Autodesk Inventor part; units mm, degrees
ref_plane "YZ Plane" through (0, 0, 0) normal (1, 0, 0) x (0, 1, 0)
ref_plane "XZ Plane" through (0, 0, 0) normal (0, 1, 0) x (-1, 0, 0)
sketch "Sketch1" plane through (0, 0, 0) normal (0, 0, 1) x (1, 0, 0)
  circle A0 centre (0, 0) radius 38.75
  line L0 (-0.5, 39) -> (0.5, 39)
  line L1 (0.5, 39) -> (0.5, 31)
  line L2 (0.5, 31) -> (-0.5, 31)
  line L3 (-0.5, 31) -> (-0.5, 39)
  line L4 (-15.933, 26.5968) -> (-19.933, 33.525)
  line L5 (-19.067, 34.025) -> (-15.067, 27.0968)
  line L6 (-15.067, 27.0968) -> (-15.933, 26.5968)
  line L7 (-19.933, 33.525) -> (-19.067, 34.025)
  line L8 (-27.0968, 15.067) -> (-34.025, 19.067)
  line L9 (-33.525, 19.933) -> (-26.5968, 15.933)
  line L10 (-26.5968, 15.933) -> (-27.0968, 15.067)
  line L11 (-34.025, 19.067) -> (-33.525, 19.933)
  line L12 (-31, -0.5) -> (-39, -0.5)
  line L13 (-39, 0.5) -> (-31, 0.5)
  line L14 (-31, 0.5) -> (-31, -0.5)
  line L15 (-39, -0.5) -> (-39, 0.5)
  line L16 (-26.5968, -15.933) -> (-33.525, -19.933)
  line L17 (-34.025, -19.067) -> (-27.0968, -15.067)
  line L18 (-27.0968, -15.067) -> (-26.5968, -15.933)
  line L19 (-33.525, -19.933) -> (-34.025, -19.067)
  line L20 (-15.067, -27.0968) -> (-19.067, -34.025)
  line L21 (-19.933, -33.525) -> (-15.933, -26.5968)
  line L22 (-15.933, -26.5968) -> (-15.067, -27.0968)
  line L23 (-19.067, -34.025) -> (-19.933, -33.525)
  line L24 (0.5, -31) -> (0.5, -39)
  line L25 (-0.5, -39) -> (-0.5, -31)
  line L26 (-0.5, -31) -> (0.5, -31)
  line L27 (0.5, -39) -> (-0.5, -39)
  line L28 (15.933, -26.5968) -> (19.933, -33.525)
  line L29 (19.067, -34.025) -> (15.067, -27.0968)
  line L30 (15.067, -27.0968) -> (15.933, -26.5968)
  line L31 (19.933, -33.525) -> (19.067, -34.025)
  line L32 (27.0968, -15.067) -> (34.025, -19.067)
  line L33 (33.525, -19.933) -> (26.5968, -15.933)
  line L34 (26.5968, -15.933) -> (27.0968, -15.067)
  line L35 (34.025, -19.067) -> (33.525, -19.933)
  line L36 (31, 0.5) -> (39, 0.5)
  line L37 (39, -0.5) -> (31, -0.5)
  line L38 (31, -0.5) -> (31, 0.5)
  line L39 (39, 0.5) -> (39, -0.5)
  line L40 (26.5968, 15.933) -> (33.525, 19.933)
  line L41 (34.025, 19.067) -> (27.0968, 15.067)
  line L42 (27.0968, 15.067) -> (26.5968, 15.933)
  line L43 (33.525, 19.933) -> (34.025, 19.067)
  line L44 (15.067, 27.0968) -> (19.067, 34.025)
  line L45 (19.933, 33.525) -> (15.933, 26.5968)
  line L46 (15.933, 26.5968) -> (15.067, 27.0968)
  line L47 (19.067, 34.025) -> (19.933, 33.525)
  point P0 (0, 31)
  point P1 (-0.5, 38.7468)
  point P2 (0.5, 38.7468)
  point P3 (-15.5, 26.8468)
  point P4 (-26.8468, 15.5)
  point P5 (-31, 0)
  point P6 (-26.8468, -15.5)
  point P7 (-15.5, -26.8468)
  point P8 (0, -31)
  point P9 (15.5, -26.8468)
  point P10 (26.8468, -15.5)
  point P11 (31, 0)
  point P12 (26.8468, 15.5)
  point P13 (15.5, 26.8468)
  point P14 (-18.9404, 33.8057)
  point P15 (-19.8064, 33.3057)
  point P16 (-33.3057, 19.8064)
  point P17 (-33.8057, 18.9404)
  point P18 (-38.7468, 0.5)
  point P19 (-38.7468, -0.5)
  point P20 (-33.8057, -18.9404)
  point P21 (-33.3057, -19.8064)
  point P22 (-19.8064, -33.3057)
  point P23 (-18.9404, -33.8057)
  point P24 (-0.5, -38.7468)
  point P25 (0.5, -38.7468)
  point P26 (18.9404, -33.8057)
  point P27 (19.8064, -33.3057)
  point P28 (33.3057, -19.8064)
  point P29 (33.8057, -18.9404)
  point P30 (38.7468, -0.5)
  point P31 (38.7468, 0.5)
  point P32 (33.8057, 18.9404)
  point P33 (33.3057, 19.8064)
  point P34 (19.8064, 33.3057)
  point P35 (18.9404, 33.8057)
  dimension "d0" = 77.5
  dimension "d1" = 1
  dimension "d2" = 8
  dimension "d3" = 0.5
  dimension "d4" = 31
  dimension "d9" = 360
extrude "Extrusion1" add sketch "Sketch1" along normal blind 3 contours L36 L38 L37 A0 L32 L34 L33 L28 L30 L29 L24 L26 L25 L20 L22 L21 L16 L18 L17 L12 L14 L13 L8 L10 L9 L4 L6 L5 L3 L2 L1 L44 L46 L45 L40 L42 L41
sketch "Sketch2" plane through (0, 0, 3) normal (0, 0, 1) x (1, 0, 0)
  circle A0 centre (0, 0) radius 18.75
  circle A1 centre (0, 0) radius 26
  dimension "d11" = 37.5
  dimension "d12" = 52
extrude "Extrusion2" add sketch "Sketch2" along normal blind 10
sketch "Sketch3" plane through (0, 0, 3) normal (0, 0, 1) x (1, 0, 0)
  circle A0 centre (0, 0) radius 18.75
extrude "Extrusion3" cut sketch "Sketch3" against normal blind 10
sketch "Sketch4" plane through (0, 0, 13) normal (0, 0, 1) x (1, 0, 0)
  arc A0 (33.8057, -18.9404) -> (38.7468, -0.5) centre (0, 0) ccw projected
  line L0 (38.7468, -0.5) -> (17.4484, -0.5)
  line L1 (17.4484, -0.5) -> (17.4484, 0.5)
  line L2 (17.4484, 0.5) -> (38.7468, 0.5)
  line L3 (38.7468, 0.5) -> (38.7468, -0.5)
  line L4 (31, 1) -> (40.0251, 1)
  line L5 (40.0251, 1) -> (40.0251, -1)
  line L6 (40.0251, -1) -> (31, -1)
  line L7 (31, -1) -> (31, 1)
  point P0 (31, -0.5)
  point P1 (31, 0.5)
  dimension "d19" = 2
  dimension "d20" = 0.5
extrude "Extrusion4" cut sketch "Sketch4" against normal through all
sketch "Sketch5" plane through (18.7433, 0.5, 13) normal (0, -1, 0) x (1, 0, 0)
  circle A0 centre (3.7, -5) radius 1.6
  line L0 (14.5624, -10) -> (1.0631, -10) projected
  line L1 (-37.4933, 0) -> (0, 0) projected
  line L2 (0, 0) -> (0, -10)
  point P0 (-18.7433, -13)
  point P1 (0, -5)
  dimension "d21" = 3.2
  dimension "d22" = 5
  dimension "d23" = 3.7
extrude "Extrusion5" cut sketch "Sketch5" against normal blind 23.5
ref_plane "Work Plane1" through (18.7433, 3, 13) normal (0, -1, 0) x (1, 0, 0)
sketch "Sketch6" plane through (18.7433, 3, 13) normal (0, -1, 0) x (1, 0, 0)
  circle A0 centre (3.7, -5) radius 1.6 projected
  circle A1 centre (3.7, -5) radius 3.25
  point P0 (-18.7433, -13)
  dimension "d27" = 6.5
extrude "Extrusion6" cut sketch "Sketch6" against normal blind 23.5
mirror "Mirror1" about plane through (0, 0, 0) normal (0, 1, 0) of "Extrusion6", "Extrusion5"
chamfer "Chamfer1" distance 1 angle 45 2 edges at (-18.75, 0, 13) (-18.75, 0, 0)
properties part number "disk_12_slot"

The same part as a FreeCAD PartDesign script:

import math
import FreeCAD as App
import Part
import Sketcher

V = App.Vector


def edges_at(feature, points):
    """Names of the edges that pass closest to the given points."""
    edges = feature.Shape.Edges
    near = lambda p: min(range(len(edges)), key=lambda i: edges[i].distToShape(Part.Vertex(*p))[0])
    return sorted({f"Edge{near(p) + 1}" for p in points})

doc = App.newDocument("Part")
body = doc.addObject("PartDesign::Body", "Body")

sketch1 = body.newObject("Sketcher::SketchObject", "Sketch")
sketch1.AttachmentSupport = (doc.getObject("XY_Plane"), [""])
sketch1.MapMode = "FlatFace"
sketch1.addGeometry([
    Part.LineSegment(V(31, 0.5, 0), V(38.7, 0.5, 0)),
    Part.ArcOfCircle(Part.Circle(V(0, 0, 0), V(0, 0, 1), 38.8), math.radians(1), math.radians(29)),
    Part.LineSegment(V(33.8, 18.9, 0), V(27.1, 15.1, 0)),
    Part.LineSegment(V(27.1, 15.1, 0), V(26.6, 15.9, 0)),
    Part.LineSegment(V(26.6, 15.9, 0), V(33.3, 19.8, 0)),
    Part.ArcOfCircle(Part.Circle(V(0, 0, 0), V(0, 0, 1), 38.8), math.radians(31), math.radians(59)),
    Part.LineSegment(V(19.8, 33.3, 0), V(15.9, 26.6, 0)),
    Part.LineSegment(V(15.9, 26.6, 0), V(15.1, 27.1, 0)),
    Part.LineSegment(V(15.1, 27.1, 0), V(18.9, 33.8, 0)),
    Part.ArcOfCircle(Part.Circle(V(0, 0, 0), V(0, 0, 1), 38.8), math.radians(61), math.radians(89)),
    Part.LineSegment(V(0.5, 38.7, 0), V(0.5, 31, 0)),
    Part.LineSegment(V(0.5, 31, 0), V(-0.5, 31, 0)),
    Part.LineSegment(V(-0.5, 31, 0), V(-0.5, 38.7, 0)),
    Part.ArcOfCircle(Part.Circle(V(0, 0, 0), V(0, 0, 1), 38.8), math.radians(91), math.radians(119)),
    Part.LineSegment(V(-18.9, 33.8, 0), V(-15.1, 27.1, 0)),
    Part.LineSegment(V(-15.1, 27.1, 0), V(-15.9, 26.6, 0)),
    Part.LineSegment(V(-15.9, 26.6, 0), V(-19.8, 33.3, 0)),
    Part.ArcOfCircle(Part.Circle(V(0, 0, 0), V(0, 0, 1), 38.8), math.radians(121), math.radians(149)),
    Part.LineSegment(V(-33.3, 19.8, 0), V(-26.6, 15.9, 0)),
    Part.LineSegment(V(-26.6, 15.9, 0), V(-27.1, 15.1, 0)),
    Part.LineSegment(V(-27.1, 15.1, 0), V(-33.8, 18.9, 0)),
    Part.ArcOfCircle(Part.Circle(V(0, 0, 0), V(0, 0, 1), 38.8), math.radians(151), math.radians(179)),
    Part.LineSegment(V(-38.7, 0.5, 0), V(-31, 0.5, 0)),
    Part.LineSegment(V(-31, 0.5, 0), V(-31, -0.5, 0)),
    Part.LineSegment(V(-31, -0.5, 0), V(-38.7, -0.5, 0)),
    Part.ArcOfCircle(Part.Circle(V(0, 0, 0), V(0, 0, 1), 38.8), math.radians(-179), math.radians(-151)),
    Part.LineSegment(V(-33.8, -18.9, 0), V(-27.1, -15.1, 0)),
    Part.LineSegment(V(-27.1, -15.1, 0), V(-26.6, -15.9, 0)),
    Part.LineSegment(V(-26.6, -15.9, 0), V(-33.3, -19.8, 0)),
    Part.ArcOfCircle(Part.Circle(V(0, 0, 0), V(0, 0, 1), 38.8), math.radians(-149), math.radians(-121)),
    Part.LineSegment(V(-19.8, -33.3, 0), V(-15.9, -26.6, 0)),
    Part.LineSegment(V(-15.9, -26.6, 0), V(-15.1, -27.1, 0)),
    Part.LineSegment(V(-15.1, -27.1, 0), V(-18.9, -33.8, 0)),
    Part.ArcOfCircle(Part.Circle(V(0, 0, 0), V(0, 0, 1), 38.8), math.radians(-119), math.radians(-91)),
    Part.LineSegment(V(-0.5, -38.7, 0), V(-0.5, -31, 0)),
    Part.LineSegment(V(-0.5, -31, 0), V(0.5, -31, 0)),
    Part.LineSegment(V(0.5, -31, 0), V(0.5, -38.7, 0)),
    Part.ArcOfCircle(Part.Circle(V(0, 0, 0), V(0, 0, 1), 38.8), math.radians(-89), math.radians(-61)),
    Part.LineSegment(V(18.9, -33.8, 0), V(15.1, -27.1, 0)),
    Part.LineSegment(V(15.1, -27.1, 0), V(15.9, -26.6, 0)),
    Part.LineSegment(V(15.9, -26.6, 0), V(19.8, -33.3, 0)),
    Part.ArcOfCircle(Part.Circle(V(0, 0, 0), V(0, 0, 1), 38.8), math.radians(-59), math.radians(-31)),
    Part.LineSegment(V(33.3, -19.8, 0), V(26.6, -15.9, 0)),
    Part.LineSegment(V(26.6, -15.9, 0), V(27.1, -15.1, 0)),
    Part.LineSegment(V(27.1, -15.1, 0), V(33.8, -18.9, 0)),
    Part.ArcOfCircle(Part.Circle(V(0, 0, 0), V(0, 0, 1), 38.8), math.radians(-29), math.radians(-1)),
    Part.LineSegment(V(38.7, -0.5, 0), V(31, -0.5, 0)),
    Part.LineSegment(V(31, -0.5, 0), V(31, 0.5, 0)),
], False)
sketch1.addConstraint([
    Sketcher.Constraint("Coincident", 0, 2, 1, 1),
    Sketcher.Constraint("Coincident", 1, 2, 2, 1),
    Sketcher.Constraint("Coincident", 2, 2, 3, 1),
    Sketcher.Constraint("Coincident", 3, 2, 4, 1),
    Sketcher.Constraint("Coincident", 4, 2, 5, 1),
    Sketcher.Constraint("Coincident", 5, 2, 6, 1),
    Sketcher.Constraint("Coincident", 6, 2, 7, 1),
    Sketcher.Constraint("Coincident", 7, 2, 8, 1),
    Sketcher.Constraint("Coincident", 8, 2, 9, 1),
    Sketcher.Constraint("Coincident", 9, 2, 10, 1),
    Sketcher.Constraint("Coincident", 10, 2, 11, 1),
    Sketcher.Constraint("Coincident", 11, 2, 12, 1),
    Sketcher.Constraint("Coincident", 12, 2, 13, 1),
    Sketcher.Constraint("Coincident", 13, 2, 14, 1),
    Sketcher.Constraint("Coincident", 14, 2, 15, 1),
    Sketcher.Constraint("Coincident", 15, 2, 16, 1),
    Sketcher.Constraint("Coincident", 16, 2, 17, 1),
    Sketcher.Constraint("Coincident", 17, 2, 18, 1),
    Sketcher.Constraint("Coincident", 18, 2, 19, 1),
    Sketcher.Constraint("Coincident", 19, 2, 20, 1),
    Sketcher.Constraint("Coincident", 20, 2, 21, 1),
    Sketcher.Constraint("Coincident", 21, 2, 22, 1),
    Sketcher.Constraint("Coincident", 22, 2, 23, 1),
    Sketcher.Constraint("Coincident", 23, 2, 24, 1),
    Sketcher.Constraint("Coincident", 24, 2, 25, 1),
    Sketcher.Constraint("Coincident", 25, 2, 26, 1),
    Sketcher.Constraint("Coincident", 26, 2, 27, 1),
    Sketcher.Constraint("Coincident", 27, 2, 28, 1),
    Sketcher.Constraint("Coincident", 28, 2, 29, 1),
    Sketcher.Constraint("Coincident", 29, 2, 30, 1),
    Sketcher.Constraint("Coincident", 30, 2, 31, 1),
    Sketcher.Constraint("Coincident", 31, 2, 32, 1),
    Sketcher.Constraint("Coincident", 32, 2, 33, 1),
    Sketcher.Constraint("Coincident", 33, 2, 34, 1),
    Sketcher.Constraint("Coincident", 34, 2, 35, 1),
    Sketcher.Constraint("Coincident", 35, 2, 36, 1),
    Sketcher.Constraint("Coincident", 36, 2, 37, 1),
    Sketcher.Constraint("Coincident", 37, 2, 38, 1),
    Sketcher.Constraint("Coincident", 38, 2, 39, 1),
    Sketcher.Constraint("Coincident", 39, 2, 40, 1),
    Sketcher.Constraint("Coincident", 40, 2, 41, 1),
    Sketcher.Constraint("Coincident", 41, 2, 42, 1),
    Sketcher.Constraint("Coincident", 42, 2, 43, 1),
    Sketcher.Constraint("Coincident", 43, 2, 44, 1),
    Sketcher.Constraint("Coincident", 44, 2, 45, 1),
    Sketcher.Constraint("Coincident", 45, 2, 46, 1),
    Sketcher.Constraint("Coincident", 46, 2, 47, 1),
    Sketcher.Constraint("Coincident", 47, 2, 0, 1),
    Sketcher.Constraint("Horizontal", 0),
    Sketcher.Constraint("Vertical", 10),
    Sketcher.Constraint("Horizontal", 11),
    Sketcher.Constraint("Vertical", 12),
    Sketcher.Constraint("Horizontal", 22),
    Sketcher.Constraint("Vertical", 23),
    Sketcher.Constraint("Horizontal", 24),
    Sketcher.Constraint("Vertical", 34),
    Sketcher.Constraint("Horizontal", 35),
    Sketcher.Constraint("Vertical", 36),
    Sketcher.Constraint("Horizontal", 46),
    Sketcher.Constraint("Vertical", 47),
    Sketcher.Constraint("Coincident", 1, 3, -1, 1),
    Sketcher.Constraint("Coincident", 5, 3, -1, 1),
    Sketcher.Constraint("Coincident", 9, 3, -1, 1),
    Sketcher.Constraint("Coincident", 13, 3, -1, 1),
    Sketcher.Constraint("Coincident", 17, 3, -1, 1),
    Sketcher.Constraint("Coincident", 21, 3, -1, 1),
    Sketcher.Constraint("Coincident", 25, 3, -1, 1),
    Sketcher.Constraint("Coincident", 29, 3, -1, 1),
    Sketcher.Constraint("Coincident", 33, 3, -1, 1),
    Sketcher.Constraint("Coincident", 37, 3, -1, 1),
    Sketcher.Constraint("Coincident", 41, 3, -1, 1),
    Sketcher.Constraint("Coincident", 45, 3, -1, 1),
    Sketcher.Constraint("Equal", 1, 5),
    Sketcher.Constraint("Equal", 5, 9),
    Sketcher.Constraint("Equal", 9, 13),
    Sketcher.Constraint("Equal", 13, 17),
    Sketcher.Constraint("Equal", 17, 21),
    Sketcher.Constraint("Equal", 21, 25),
    Sketcher.Constraint("Equal", 25, 29),
    Sketcher.Constraint("Equal", 29, 33),
    Sketcher.Constraint("Equal", 33, 37),
    Sketcher.Constraint("Equal", 37, 41),
    Sketcher.Constraint("Equal", 41, 45),
    Sketcher.Constraint("Symmetric", 2, 2, 26, 2, -1, 1),
    Sketcher.Constraint("Symmetric", 3, 2, 27, 2, -1, 1),
    Sketcher.Constraint("Symmetric", 6, 2, 30, 2, -1, 1),
    Sketcher.Constraint("Symmetric", 7, 2, 31, 2, -1, 1),
    Sketcher.Constraint("Symmetric", 10, 2, 34, 2, -1, 1),
    Sketcher.Constraint("Symmetric", 14, 2, 38, 2, -1, 1),
    Sketcher.Constraint("Symmetric", 15, 2, 39, 2, -1, 1),
    Sketcher.Constraint("Symmetric", 18, 2, 42, 2, -1, 1),
    Sketcher.Constraint("Symmetric", 19, 2, 43, 2, -1, 1),
    Sketcher.Constraint("Symmetric", 22, 2, 46, 2, -1, 1),
    Sketcher.Constraint("Symmetric", 7, 2, 14, 2, -2),
    Sketcher.Constraint("Symmetric", 6, 2, 15, 2, -2),
    Sketcher.Constraint("Symmetric", 3, 2, 18, 2, -2),
    Sketcher.Constraint("Symmetric", 2, 2, 19, 2, -2),
    Sketcher.Constraint("Perpendicular", 2, 3),
    Sketcher.Constraint("Perpendicular", 3, 4),
    Sketcher.Constraint("Perpendicular", 6, 7),
    Sketcher.Constraint("Perpendicular", 7, 8),
    Sketcher.Constraint("Perpendicular", 4, 14),
    Sketcher.Constraint("Perpendicular", 14, 15),
    Sketcher.Constraint("Perpendicular", 15, 16),
    Sketcher.Constraint("Perpendicular", 8, 18),
    Sketcher.Constraint("Perpendicular", 19, 20),
    Sketcher.Constraint("Perpendicular", 16, 26),
    Sketcher.Constraint("Perpendicular", 27, 28),
    Sketcher.Constraint("Perpendicular", 20, 30),
    Sketcher.Constraint("Perpendicular", 31, 32),
    Sketcher.Constraint("Perpendicular", 28, 38),
    Sketcher.Constraint("Perpendicular", 39, 40),
    Sketcher.Constraint("Perpendicular", 32, 42),
    Sketcher.Constraint("Perpendicular", 43, 44),
    Sketcher.Constraint("Horizontal", 9, 2, 12, 2),
    Sketcher.Constraint("Horizontal", 0, 2, 21, 2),
    Sketcher.Constraint("Horizontal", 33, 2, 36, 2),
    Sketcher.Constraint("Horizontal", 24, 2, 45, 2),
    Sketcher.Constraint("Equal", 46, 10),
    Sketcher.Constraint("Equal", 35, 23),
    Sketcher.Constraint("Equal", 2, 4),
    Sketcher.Constraint("Equal", 4, 6),
    Sketcher.Constraint("Equal", 3, 7),
    Sketcher.Constraint("Equal", 6, 8),
    Sketcher.Constraint("DistanceX", 11, 2, 11, 1, 1.0),
    Sketcher.Constraint("Radius", 1, 38.75),
    Sketcher.Constraint("Distance", 3, 1.0),
    Sketcher.Constraint("DistanceY", -1, 1, 10, 2, 31.0),
    Sketcher.Constraint("DistanceX", 3, 2, 2, 2, 0.5),
    Sketcher.Constraint("DistanceX", 2, 2, 0, 2, 11.65),
])
pad1 = body.newObject("PartDesign::Pad", "Pad")
pad1.Profile = sketch1
pad1.Length = 3

sketch2 = body.newObject("Sketcher::SketchObject", "Sketch001")
sketch2.AttachmentSupport = (doc.getObject("XY_Plane"), [""])
sketch2.MapMode = "FlatFace"
sketch2.AttachmentOffset = App.Placement(V(0, 0, 3), App.Rotation())
sketch2.addGeometry([
    Part.Circle(V(0, 0, 0), V(0, 0, 1), 26),
    Part.Circle(V(0, 0, 0), V(0, 0, 1), 19),
], False)
sketch2.addConstraint([
    Sketcher.Constraint("Coincident", 0, 3, -1, 1),
    Sketcher.Constraint("Coincident", 1, 3, -1, 1),
    Sketcher.Constraint("Diameter", 0, 52.0),
    Sketcher.Constraint("Diameter", 1, 37.5),
])
pad2 = body.newObject("PartDesign::Pad", "Pad001")
pad2.Profile = sketch2
pad2.Length = 10

sketch3 = body.newObject("Sketcher::SketchObject", "Sketch002")
sketch3.AttachmentSupport = (doc.getObject("XY_Plane"), [""])
sketch3.MapMode = "FlatFace"
sketch3.AttachmentOffset = App.Placement(V(0, 0, 3), App.Rotation())
sketch3.addGeometry(Part.Circle(V(0, 0, 0), V(0, 0, 1), 19), False)
sketch3.addConstraint([
    Sketcher.Constraint("Coincident", 0, 3, -1, 1),
    Sketcher.Constraint("Diameter", 0, 37.5),
])
pocket1 = body.newObject("PartDesign::Pocket", "Pocket")
pocket1.Profile = sketch3
pocket1.Length = 10

sketch4 = body.newObject("Sketcher::SketchObject", "Sketch003")
sketch4.AttachmentSupport = (doc.getObject("XY_Plane"), [""])
sketch4.MapMode = "FlatFace"
sketch4.AttachmentOffset = App.Placement(V(0, 0, 13), App.Rotation())
sketch4.addGeometry([
    Part.LineSegment(V(31, -1, 0), V(40, -1, 0)),
    Part.LineSegment(V(40, -1, 0), V(40, 1, 0)),
    Part.LineSegment(V(40, 1, 0), V(31, 1, 0)),
    Part.LineSegment(V(31, 1, 0), V(31, 0.5, 0)),
    Part.LineSegment(V(31, 0.5, 0), V(17.4, 0.5, 0)),
    Part.LineSegment(V(17.4, 0.5, 0), V(17.4, -0.5, 0)),
    Part.LineSegment(V(17.4, -0.5, 0), V(31, -0.5, 0)),
    Part.LineSegment(V(31, -0.5, 0), V(31, -1, 0)),
], False)
sketch4.addConstraint([
    Sketcher.Constraint("Coincident", 0, 2, 1, 1),
    Sketcher.Constraint("Coincident", 1, 2, 2, 1),
    Sketcher.Constraint("Coincident", 2, 2, 3, 1),
    Sketcher.Constraint("Coincident", 3, 2, 4, 1),
    Sketcher.Constraint("Coincident", 4, 2, 5, 1),
    Sketcher.Constraint("Coincident", 5, 2, 6, 1),
    Sketcher.Constraint("Coincident", 6, 2, 7, 1),
    Sketcher.Constraint("Coincident", 7, 2, 0, 1),
    Sketcher.Constraint("Horizontal", 0),
    Sketcher.Constraint("Vertical", 1),
    Sketcher.Constraint("Horizontal", 2),
    Sketcher.Constraint("Vertical", 3),
    Sketcher.Constraint("Horizontal", 4),
    Sketcher.Constraint("Vertical", 5),
    Sketcher.Constraint("Horizontal", 6),
    Sketcher.Constraint("Vertical", 7),
    Sketcher.Constraint("Symmetric", 3, 2, 6, 2, -1),
    Sketcher.Constraint("Equal", 3, 7),
    Sketcher.Constraint("DistanceY", 1, 1, 1, 2, 2.0),
    Sketcher.Constraint("DistanceY", 3, 2, 3, 1, 0.5),
    Sketcher.Constraint("DistanceX", -1, 1, 2, 2, 31.0),
    Sketcher.Constraint("DistanceX", 0, 1, 0, 2, 9.025),
    Sketcher.Constraint("DistanceX", 4, 2, 4, 1, 13.5516),
])
pocket2 = body.newObject("PartDesign::Pocket", "Pocket001")
pocket2.Profile = sketch4
pocket2.Type = "ThroughAll"

sketch5 = body.newObject("Sketcher::SketchObject", "Sketch004")
sketch5.AttachmentSupport = (doc.getObject("XZ_Plane"), [""])
sketch5.MapMode = "FlatFace"
sketch5.AttachmentOffset = App.Placement(V(0, 0, -0.5), App.Rotation())
sketch5.addGeometry(Part.Circle(V(22.4, 8, 0), V(0, 0, 1), 1.6), False)
sketch5.addConstraint([
    Sketcher.Constraint("Diameter", 0, 3.2),
    Sketcher.Constraint("DistanceY", -1, 1, 0, 3, 8.0),
    Sketcher.Constraint("DistanceX", -1, 1, 0, 3, 22.4433),
])
pocket3 = body.newObject("PartDesign::Pocket", "Pocket002")
pocket3.Profile = sketch5
pocket3.Length = 23.5

sketch6 = body.newObject("Sketcher::SketchObject", "Sketch005")
sketch6.AttachmentSupport = (doc.getObject("XZ_Plane"), [""])
sketch6.MapMode = "FlatFace"
sketch6.AttachmentOffset = App.Placement(V(0, 0, -3), App.Rotation())
sketch6.addGeometry([
    Part.Circle(V(22.4, 8, 0), V(0, 0, 1), 3.2),
    Part.Circle(V(22.4, 8, 0), V(0, 0, 1), 1.6),
], False)
sketch6.addConstraint([
    Sketcher.Constraint("Coincident", 1, 3, 0, 3),
    Sketcher.Constraint("Diameter", 0, 6.5),
    Sketcher.Constraint("Diameter", 1, 3.2),
    Sketcher.Constraint("DistanceY", -1, 1, 0, 3, 8.0),
    Sketcher.Constraint("DistanceX", -1, 1, 0, 3, 22.4433),
])
pocket4 = body.newObject("PartDesign::Pocket", "Pocket003")
pocket4.Profile = sketch6
pocket4.Length = 23.5
doc.recompute()

mirrored = body.newObject("PartDesign::Mirrored", "Mirrored")
mirrored.Originals = [pocket4, pocket3]
mirrored.MirrorPlane = (doc.getObject("XZ_Plane"), [""])
body.Tip = mirrored
doc.recompute()

chamfer = body.newObject("PartDesign::Chamfer", "Chamfer")
chamfer.Base = (mirrored, edges_at(mirrored, [(-18.75, 0, 13), (-18.75, 0, 0)]))
chamfer.Size = 1

doc.recompute()
